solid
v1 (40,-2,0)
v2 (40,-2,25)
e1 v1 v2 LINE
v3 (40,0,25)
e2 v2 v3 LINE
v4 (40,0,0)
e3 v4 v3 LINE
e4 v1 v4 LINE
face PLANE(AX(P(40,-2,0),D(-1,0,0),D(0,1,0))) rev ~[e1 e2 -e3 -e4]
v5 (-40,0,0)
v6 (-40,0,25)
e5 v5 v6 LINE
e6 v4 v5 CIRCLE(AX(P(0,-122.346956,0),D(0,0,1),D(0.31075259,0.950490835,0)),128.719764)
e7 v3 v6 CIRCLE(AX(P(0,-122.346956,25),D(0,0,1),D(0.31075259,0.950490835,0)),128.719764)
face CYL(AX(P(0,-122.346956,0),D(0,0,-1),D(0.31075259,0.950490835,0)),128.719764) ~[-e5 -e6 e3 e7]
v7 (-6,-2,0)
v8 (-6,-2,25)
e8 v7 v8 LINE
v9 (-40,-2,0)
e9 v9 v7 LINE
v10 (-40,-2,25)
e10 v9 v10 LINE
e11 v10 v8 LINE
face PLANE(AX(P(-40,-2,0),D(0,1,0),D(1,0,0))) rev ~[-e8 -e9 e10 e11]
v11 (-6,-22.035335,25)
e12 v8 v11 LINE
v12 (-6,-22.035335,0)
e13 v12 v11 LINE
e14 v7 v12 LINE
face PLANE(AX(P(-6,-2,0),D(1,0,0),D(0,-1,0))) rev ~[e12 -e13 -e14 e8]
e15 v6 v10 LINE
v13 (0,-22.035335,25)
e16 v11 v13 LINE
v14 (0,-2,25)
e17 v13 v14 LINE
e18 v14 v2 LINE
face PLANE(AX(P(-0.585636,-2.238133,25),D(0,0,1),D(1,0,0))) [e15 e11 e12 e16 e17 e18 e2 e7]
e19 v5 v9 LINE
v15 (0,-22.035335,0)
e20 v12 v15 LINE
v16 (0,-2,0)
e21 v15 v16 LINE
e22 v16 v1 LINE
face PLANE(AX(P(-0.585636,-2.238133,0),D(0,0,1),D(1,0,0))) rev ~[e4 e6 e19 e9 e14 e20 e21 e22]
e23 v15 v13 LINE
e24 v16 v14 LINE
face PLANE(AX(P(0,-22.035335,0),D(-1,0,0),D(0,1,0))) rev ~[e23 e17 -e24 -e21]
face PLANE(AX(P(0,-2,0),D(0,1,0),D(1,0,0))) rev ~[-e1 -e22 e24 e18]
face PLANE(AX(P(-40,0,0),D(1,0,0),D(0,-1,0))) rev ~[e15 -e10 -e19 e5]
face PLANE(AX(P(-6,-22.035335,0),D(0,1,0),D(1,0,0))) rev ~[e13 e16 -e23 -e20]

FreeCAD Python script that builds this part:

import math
import FreeCAD as App
import Part
import Sketcher
from FreeCAD import Vector
Q = App.Units.Quantity

doc = App.newDocument("Part")
params = doc.addObject("Spreadsheet::Sheet", "Params")
for row, (alias, value) in enumerate([
    ("sketch1_width", "34 mm"),
    ("sketch1_width2", "6 mm"),
    ("sketch1_height", "2 mm"),
    ("pad1_length", "25 mm"),
], start=1):
    params.set(f"A{row}", alias)
    params.set(f"B{row}", "=" + value)
    params.setAlias(f"B{row}", alias)

body = doc.addObject("PartDesign::Body", "Body")

# Sketch on XY plane
sketch1 = doc.addObject("Sketcher::SketchObject", "Sketch")
body.addObject(sketch1)
sketch1.AttachmentSupport = (doc.XY_Plane, [""])
sketch1.MapMode = "FlatFace"
sketch1.addGeometry([
    Part.LineSegment(Vector(40, -2, 0), Vector(40, 0, 0)),  # 0
    Part.ArcOfCircle(Part.Circle(Vector(0, -122.3, 0), Vector(0, 0, 1), 128.7), math.radians(72), math.radians(108)),  # 1
    Part.LineSegment(Vector(-40, 0, 0), Vector(-40, -2, 0)),  # 2
    Part.LineSegment(Vector(-40, -2, 0), Vector(-6, -2, 0)),  # 3
    Part.LineSegment(Vector(-6, -2, 0), Vector(-6, -22, 0)),  # 4
    Part.LineSegment(Vector(-6, -22, 0), Vector(0, -22, 0)),  # 5
    Part.LineSegment(Vector(0, -22, 0), Vector(0, -2, 0)),  # 6
    Part.LineSegment(Vector(0, -2, 0), Vector(40, -2, 0)),  # 7
], False)
sketch1.addConstraint([
    Sketcher.Constraint("Coincident", 0, 2, 1, 1),
    Sketcher.Constraint("Coincident", 1, 2, 2, 1),
    Sketcher.Constraint("Coincident", 2, 2, 3, 1),
    Sketcher.Constraint("Coincident", 3, 2, 4, 1),
    Sketcher.Constraint("Coincident", 4, 2, 5, 1),
    Sketcher.Constraint("Coincident", 5, 2, 6, 1),
    Sketcher.Constraint("Coincident", 6, 2, 7, 1),
    Sketcher.Constraint("Coincident", 7, 2, 0, 1),
    Sketcher.Constraint("Vertical", 0),
    Sketcher.Constraint("Vertical", 2),
    Sketcher.Constraint("Horizontal", 3),
    Sketcher.Constraint("Vertical", 4),
    Sketcher.Constraint("Horizontal", 5),
    Sketcher.Constraint("Vertical", 6),
    Sketcher.Constraint("Horizontal", 7),
    Sketcher.Constraint("Symmetric", 0, 2, 1, 2, -1, 1),
    Sketcher.Constraint("PointOnObject", 1, 3, -2),
    Sketcher.Constraint("PointOnObject", 5, 2, -2),
    Sketcher.Constraint("Horizontal", 3, 2, 6, 2),
    Sketcher.Constraint("DistanceX", 3, 1, 3, 2, Q("34 mm")),
    Sketcher.Constraint("DistanceX", 5, 1, 5, 2, Q("6 mm")),
    Sketcher.Constraint("DistanceY", 0, 1, 0, 2, Q("2 mm")),
    Sketcher.Constraint("Radius", 1, Q("128.719764 mm")),
    Sketcher.Constraint("DistanceY", 4, 2, 4, 1, Q("20.035335 mm")),
])
sketch1.setExpression("Constraints[19]", "Params.sketch1_width")
sketch1.setExpression("Constraints[20]", "Params.sketch1_width2")
sketch1.setExpression("Constraints[21]", "Params.sketch1_height")
pad1 = doc.addObject("PartDesign::Pad", "Pad")
body.addObject(pad1)
pad1.Profile = sketch1
pad1.setExpression("Length", "Params.pad1_length")

doc.recompute()
